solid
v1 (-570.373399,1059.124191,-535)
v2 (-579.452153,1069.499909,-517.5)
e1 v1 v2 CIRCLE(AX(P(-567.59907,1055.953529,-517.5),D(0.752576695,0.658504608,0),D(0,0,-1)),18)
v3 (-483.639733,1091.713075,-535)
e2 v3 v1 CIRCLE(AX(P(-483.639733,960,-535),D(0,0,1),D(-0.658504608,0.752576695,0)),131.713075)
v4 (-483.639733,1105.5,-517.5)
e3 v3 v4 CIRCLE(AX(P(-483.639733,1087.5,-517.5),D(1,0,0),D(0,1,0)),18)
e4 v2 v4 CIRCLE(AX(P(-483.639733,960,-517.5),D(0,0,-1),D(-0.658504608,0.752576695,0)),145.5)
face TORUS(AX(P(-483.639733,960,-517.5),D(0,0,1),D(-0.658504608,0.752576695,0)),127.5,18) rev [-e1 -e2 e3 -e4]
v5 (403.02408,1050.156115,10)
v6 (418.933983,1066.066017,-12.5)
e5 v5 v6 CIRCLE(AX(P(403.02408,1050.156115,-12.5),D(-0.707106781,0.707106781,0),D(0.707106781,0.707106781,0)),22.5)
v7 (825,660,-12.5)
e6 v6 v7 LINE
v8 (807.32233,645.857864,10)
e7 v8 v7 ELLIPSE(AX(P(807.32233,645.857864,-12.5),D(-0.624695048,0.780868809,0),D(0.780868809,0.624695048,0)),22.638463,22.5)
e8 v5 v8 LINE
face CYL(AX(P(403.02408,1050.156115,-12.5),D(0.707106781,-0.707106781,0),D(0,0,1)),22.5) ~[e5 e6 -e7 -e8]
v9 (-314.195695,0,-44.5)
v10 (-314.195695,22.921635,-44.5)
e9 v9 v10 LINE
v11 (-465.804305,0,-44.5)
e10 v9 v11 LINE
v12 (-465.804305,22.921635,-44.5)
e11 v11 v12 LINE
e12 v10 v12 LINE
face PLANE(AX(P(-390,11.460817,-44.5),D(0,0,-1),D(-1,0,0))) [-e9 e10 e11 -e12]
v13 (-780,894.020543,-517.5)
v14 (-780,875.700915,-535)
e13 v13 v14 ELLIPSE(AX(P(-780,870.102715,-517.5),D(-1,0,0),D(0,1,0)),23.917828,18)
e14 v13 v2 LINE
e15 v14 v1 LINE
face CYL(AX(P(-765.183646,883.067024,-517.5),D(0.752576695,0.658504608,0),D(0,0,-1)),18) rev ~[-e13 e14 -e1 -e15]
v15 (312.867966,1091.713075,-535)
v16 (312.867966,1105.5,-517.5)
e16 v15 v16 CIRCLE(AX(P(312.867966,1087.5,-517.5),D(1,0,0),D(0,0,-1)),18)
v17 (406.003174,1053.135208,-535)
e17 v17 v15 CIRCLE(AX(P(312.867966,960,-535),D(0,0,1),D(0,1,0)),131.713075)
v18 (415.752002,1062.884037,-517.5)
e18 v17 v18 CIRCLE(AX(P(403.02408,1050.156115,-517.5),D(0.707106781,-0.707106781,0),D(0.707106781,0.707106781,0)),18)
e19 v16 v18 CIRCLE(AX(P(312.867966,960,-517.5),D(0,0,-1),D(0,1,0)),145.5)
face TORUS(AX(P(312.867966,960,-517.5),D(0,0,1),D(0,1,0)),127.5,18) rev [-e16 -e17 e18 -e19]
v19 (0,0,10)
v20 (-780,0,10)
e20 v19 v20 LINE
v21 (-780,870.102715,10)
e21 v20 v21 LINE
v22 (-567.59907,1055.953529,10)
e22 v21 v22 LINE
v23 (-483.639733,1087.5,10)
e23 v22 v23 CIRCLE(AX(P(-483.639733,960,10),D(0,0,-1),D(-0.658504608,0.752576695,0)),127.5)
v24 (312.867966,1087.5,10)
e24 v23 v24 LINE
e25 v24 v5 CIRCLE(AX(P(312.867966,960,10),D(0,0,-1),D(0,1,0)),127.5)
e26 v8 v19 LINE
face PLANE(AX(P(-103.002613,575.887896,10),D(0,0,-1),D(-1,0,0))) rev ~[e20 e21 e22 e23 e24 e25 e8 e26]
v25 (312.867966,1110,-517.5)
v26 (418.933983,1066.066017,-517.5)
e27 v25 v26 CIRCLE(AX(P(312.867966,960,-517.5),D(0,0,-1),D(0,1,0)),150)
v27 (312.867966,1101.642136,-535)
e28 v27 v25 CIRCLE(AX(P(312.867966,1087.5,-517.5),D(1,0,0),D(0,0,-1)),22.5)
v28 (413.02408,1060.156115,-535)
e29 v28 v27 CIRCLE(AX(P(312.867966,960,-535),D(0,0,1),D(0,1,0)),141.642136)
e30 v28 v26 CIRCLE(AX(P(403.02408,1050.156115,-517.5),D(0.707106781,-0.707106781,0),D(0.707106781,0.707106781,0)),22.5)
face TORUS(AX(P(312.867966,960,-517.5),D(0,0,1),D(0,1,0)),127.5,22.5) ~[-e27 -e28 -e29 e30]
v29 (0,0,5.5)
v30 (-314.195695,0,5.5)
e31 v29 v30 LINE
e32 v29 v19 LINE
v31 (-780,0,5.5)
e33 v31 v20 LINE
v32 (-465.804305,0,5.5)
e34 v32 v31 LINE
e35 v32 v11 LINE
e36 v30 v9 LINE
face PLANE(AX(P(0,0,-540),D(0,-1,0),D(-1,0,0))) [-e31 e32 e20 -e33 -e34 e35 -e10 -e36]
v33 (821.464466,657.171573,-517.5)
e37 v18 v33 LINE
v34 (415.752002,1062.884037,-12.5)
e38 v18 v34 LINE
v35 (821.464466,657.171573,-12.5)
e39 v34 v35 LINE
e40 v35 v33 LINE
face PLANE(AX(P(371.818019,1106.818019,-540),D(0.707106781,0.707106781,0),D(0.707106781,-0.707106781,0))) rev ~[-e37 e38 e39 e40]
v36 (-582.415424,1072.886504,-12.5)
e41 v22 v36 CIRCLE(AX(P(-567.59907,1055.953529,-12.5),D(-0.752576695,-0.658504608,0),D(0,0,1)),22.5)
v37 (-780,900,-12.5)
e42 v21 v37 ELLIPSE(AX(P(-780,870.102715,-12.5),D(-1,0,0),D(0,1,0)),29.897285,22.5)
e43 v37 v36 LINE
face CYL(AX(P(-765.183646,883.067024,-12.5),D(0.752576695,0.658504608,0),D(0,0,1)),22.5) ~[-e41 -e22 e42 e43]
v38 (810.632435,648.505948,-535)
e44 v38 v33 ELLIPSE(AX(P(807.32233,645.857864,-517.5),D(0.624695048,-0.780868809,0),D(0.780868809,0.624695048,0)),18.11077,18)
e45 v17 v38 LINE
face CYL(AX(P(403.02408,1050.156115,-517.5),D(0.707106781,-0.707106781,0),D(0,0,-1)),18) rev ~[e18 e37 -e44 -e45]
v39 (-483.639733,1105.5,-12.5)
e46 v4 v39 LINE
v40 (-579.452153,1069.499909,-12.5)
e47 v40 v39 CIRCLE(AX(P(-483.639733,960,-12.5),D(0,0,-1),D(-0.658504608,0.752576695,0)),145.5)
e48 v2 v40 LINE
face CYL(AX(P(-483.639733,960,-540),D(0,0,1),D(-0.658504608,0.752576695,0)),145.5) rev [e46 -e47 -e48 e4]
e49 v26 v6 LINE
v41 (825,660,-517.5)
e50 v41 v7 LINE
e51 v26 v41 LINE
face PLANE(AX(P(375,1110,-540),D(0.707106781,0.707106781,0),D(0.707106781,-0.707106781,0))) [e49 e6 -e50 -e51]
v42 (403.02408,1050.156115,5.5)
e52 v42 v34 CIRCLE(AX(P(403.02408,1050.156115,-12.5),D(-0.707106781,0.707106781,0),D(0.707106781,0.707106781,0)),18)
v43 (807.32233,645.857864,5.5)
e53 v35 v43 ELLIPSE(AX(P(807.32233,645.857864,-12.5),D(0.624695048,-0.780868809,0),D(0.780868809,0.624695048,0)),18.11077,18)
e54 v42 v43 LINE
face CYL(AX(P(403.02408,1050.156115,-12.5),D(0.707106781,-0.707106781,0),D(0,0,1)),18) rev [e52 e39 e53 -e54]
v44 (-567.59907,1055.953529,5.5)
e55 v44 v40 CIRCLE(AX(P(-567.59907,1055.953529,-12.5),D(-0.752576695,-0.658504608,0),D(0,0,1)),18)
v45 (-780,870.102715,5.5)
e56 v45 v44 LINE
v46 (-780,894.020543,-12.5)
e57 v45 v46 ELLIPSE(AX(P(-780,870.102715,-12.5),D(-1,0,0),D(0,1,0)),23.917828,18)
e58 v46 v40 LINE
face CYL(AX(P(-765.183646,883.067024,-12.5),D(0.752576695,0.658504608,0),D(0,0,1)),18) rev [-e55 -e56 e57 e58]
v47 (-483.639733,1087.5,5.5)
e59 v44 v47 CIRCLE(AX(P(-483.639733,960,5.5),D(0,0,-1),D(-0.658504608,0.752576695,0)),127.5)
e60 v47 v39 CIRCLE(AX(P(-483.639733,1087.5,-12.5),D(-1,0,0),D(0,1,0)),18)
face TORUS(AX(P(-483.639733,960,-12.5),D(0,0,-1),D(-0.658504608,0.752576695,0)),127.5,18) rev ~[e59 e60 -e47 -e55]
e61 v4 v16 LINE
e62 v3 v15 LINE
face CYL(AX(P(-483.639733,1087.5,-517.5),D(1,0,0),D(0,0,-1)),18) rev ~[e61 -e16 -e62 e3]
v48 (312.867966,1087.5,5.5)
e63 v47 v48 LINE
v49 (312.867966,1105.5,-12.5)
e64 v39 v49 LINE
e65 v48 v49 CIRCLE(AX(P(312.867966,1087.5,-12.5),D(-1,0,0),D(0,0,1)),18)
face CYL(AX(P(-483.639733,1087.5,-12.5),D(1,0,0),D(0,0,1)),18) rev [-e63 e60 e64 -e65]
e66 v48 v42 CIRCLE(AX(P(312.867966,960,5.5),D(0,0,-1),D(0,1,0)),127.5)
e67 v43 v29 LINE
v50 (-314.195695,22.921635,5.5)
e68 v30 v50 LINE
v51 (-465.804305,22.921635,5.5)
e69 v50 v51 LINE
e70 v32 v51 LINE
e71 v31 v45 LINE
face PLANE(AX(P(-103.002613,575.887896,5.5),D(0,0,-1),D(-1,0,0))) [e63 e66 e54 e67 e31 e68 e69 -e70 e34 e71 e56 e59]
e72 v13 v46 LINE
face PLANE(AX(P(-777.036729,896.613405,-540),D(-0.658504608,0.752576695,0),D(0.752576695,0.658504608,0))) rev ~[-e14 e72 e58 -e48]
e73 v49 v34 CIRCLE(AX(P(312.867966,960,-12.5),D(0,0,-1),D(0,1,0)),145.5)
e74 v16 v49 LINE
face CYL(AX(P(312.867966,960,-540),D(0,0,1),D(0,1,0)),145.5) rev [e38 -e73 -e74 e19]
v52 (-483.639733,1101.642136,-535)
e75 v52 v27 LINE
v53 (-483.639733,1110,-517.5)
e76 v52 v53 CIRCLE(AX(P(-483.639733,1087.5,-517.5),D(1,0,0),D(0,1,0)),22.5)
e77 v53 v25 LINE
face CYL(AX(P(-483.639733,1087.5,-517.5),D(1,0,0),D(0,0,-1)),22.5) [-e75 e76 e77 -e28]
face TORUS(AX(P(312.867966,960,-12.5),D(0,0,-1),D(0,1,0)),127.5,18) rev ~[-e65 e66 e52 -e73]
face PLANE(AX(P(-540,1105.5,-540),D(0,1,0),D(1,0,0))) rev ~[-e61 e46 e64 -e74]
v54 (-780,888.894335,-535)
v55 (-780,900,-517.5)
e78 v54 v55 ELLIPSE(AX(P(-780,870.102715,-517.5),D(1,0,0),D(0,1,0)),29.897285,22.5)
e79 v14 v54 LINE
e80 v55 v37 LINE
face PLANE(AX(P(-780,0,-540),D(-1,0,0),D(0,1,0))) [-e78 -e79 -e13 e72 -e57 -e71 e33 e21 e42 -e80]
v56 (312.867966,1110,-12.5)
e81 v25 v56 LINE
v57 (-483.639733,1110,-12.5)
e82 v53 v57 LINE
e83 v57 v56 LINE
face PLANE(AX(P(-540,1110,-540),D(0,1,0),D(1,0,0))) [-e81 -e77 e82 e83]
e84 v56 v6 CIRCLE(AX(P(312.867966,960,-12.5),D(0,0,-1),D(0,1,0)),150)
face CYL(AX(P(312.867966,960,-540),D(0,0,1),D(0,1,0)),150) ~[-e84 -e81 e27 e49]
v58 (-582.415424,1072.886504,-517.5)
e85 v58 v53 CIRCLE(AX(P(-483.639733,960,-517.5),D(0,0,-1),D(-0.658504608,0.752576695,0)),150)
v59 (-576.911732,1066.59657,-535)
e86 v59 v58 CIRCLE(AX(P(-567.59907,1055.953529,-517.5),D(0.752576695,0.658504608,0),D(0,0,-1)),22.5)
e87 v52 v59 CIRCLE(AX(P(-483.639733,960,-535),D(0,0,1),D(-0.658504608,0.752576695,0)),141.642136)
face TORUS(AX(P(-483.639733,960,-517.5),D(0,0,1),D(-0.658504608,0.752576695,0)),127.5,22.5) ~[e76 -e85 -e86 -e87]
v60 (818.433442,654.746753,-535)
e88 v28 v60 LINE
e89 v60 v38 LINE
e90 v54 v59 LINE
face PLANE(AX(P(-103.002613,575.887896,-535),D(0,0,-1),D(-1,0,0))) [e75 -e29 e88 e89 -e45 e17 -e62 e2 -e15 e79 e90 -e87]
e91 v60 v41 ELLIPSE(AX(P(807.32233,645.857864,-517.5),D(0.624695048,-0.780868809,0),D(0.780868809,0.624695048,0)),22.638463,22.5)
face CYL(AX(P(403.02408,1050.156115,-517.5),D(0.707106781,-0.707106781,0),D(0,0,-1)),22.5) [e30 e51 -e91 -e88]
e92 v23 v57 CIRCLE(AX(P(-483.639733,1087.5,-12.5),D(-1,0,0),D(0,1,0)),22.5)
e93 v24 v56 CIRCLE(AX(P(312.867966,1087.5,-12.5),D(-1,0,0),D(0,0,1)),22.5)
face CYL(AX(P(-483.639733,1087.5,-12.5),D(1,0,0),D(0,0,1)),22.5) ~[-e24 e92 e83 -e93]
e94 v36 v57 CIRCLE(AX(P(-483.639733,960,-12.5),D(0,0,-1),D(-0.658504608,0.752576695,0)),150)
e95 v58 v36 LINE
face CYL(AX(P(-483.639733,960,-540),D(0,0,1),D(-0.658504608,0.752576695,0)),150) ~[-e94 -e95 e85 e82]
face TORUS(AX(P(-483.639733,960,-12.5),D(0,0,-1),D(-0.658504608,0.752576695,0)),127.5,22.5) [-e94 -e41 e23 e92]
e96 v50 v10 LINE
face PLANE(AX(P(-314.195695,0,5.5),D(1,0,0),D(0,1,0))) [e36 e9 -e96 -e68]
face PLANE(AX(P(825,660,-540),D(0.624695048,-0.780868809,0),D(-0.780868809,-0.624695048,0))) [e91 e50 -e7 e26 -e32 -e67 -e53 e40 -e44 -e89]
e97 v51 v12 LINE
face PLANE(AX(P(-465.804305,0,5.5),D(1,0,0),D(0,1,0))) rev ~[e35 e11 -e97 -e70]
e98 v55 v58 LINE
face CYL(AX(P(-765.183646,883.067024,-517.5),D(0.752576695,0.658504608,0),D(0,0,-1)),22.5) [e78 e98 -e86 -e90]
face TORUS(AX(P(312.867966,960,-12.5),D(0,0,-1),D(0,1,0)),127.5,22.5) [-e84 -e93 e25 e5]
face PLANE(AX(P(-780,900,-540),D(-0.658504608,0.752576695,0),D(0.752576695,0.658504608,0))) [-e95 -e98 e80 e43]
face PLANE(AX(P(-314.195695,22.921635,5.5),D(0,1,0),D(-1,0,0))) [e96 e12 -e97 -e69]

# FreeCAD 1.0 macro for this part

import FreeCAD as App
import Part
import Sketcher

V = App.Vector
Q = App.Units.Quantity


def edges_at(feature, points):
    """Names of the edges that pass closest to the given points."""
    edges = feature.Shape.Edges
    near = lambda p: min(range(len(edges)), key=lambda i: edges[i].distToShape(Part.Vertex(*p))[0])
    return sorted({f"Edge{near(p) + 1}" for p in points})


def faces_at(feature, points):
    """Names of the faces that lie closest to the given points."""
    faces = feature.Shape.Faces
    near = lambda p: min(range(len(faces)), key=lambda i: faces[i].distToShape(Part.Vertex(*p))[0])
    return sorted({f"Face{near(p) + 1}" for p in points})


def add_polygon(sketch, points):
    """Adds a closed chain of lines whose ends are joined by coincident constraints."""
    first, n = sketch.GeometryCount, len(points)
    for a, b in zip(points, points[1:] + points[:1]):
        sketch.addGeometry(Part.LineSegment(App.Vector(*a, 0), App.Vector(*b, 0)), False)
    for i in range(n):
        sketch.addConstraint(Sketcher.Constraint("Coincident", first + i, 2, first + (i + 1) % n, 1))

doc = App.newDocument("Part")
body = doc.addObject("PartDesign::Body", "Body")

sketch1 = doc.addObject("Sketcher::SketchObject", "Sketch")
body.addObject(sketch1)
sketch1.AttachmentSupport = (doc.XY_Plane, [""])
sketch1.MapMode = "FlatFace"
add_polygon(sketch1, [(-780, 0), (0, 0), (825, 660), (375, 1110), (-540, 1110), (-780, 900)])
sketch1.addConstraint([
    Sketcher.Constraint("Horizontal", 0),
    Sketcher.Constraint("Horizontal", 3),
    Sketcher.Constraint("Vertical", 5),
    Sketcher.Constraint("Coincident", 0, 2, -1, 1),
    Sketcher.Constraint("DistanceX", 0, 1, 0, 2, Q("780 mm")),
    Sketcher.Constraint("DistanceX", 3, 2, 3, 1, Q("915 mm")),
    Sketcher.Constraint("DistanceY", 5, 2, 5, 1, Q("900 mm")),
    Sketcher.Constraint("Angle", 2, Q("135 deg")),
    Sketcher.Constraint("DistanceX", -1, 1, 1, 2, Q("825 mm")),
    Sketcher.Constraint("DistanceY", -1, 1, 1, 2, Q("660 mm")),
    Sketcher.Constraint("DistanceX", -1, 1, 2, 2, Q("375 mm")),
])
pad1 = doc.addObject("PartDesign::Pad", "Pad")
body.addObject(pad1)
pad1.Profile = sketch1
pad1.Type = "TwoLengths"
pad1.Length = 10
pad1.Length2 = 540
doc.recompute()

fillet = doc.addObject("PartDesign::Fillet", "Fillet")
body.addObject(fillet)
fillet.Base = (pad1, edges_at(pad1, [(-540, 1110, -265), (375, 1110, -265)]))
fillet.Radius = 150
doc.recompute()

fillet2 = doc.addObject("PartDesign::Fillet", "Fillet001")
body.addObject(fillet2)
fillet2.Base = (fillet, edges_at(fillet, [
    (621.967, 863.033, -540),
    (-85.386, 1110, -540),
    (-85.386, 1110, 10),
    (-681.208, 986.443, -540),
    (-536.399, 1100.415, -540),
    (370.27, 1098.582, -540),
    (-681.208, 986.443, 10),
    (-536.399, 1100.415, 10),
    (370.27, 1098.582, 10),
    (621.967, 863.033, 10),
]))
fillet2.Radius = 22.5
doc.recompute()

thickness = doc.addObject("PartDesign::Thickness", "Thickness")
body.addObject(thickness)
thickness.Base = (fillet2, faces_at(fillet2, [(-390, 0, -265), (-780, 450, -265), (412.5, 330, -265)]))
thickness.Value = 4.5
thickness.Reversed = True
thickness.Join = "Arc"

sketch2 = doc.addObject("Sketcher::SketchObject", "Sketch001")
body.addObject(sketch2)
sketch2.AttachmentSupport = (doc.XY_Plane, [""])
sketch2.MapMode = "FlatFace"
sketch2.AttachmentOffset = App.Placement(V(0, 0, -535), App.Rotation())
add_polygon(sketch2, [(-780, 0), (0, 0), (825, 660), (375, 1110), (-540, 1110), (-780, 900)])
sketch2.addConstraint([
    Sketcher.Constraint("Horizontal", 0),
    Sketcher.Constraint("Horizontal", 3),
    Sketcher.Constraint("Vertical", 5),
    Sketcher.Constraint("Coincident", 0, 2, -1, 1),
    Sketcher.Constraint("DistanceX", 0, 1, 0, 2, Q("780 mm")),
    Sketcher.Constraint("DistanceX", 3, 2, 3, 1, Q("915 mm")),
    Sketcher.Constraint("DistanceY", 5, 2, 5, 1, Q("900 mm")),
    Sketcher.Constraint("Angle", 2, Q("135 deg")),
    Sketcher.Constraint("DistanceX", -1, 1, 1, 2, Q("825 mm")),
    Sketcher.Constraint("DistanceY", -1, 1, 1, 2, Q("660 mm")),
    Sketcher.Constraint("DistanceX", -1, 1, 2, 2, Q("375 mm")),
])
pocket1 = doc.addObject("PartDesign::Pocket", "Pocket")
body.addObject(pocket1)
pocket1.Profile = sketch2
pocket1.Length = 79

sketch3 = doc.addObject("Sketcher::SketchObject", "Sketch002")
body.addObject(sketch3)
sketch3.AttachmentSupport = (doc.XY_Plane, [""])
sketch3.MapMode = "FlatFace"
sketch3.AttachmentOffset = App.Placement(V(0, 0, 5.5), App.Rotation())
add_polygon(sketch3, [(-314.195695, 22.921635), (-314.195695, 0), (-465.804305, 0), (-465.804305, 22.921635)])
sketch3.addConstraint([
    Sketcher.Constraint("Vertical", 0),
    Sketcher.Constraint("Horizontal", 1),
    Sketcher.Constraint("Vertical", 2),
    Sketcher.Constraint("Horizontal", 3),
    Sketcher.Constraint("PointOnObject", 0, 2, -1),
    Sketcher.Constraint("DistanceX", 1, 2, 1, 1, Q("151.608609 mm")),
    Sketcher.Constraint("DistanceY", 0, 2, 0, 1, Q("22.921635 mm")),
    Sketcher.Constraint("DistanceX", 0, 2, -1, 1, Q("314.195695 mm")),
])
pad2 = doc.addObject("PartDesign::Pad", "Pad001")
body.addObject(pad2)
pad2.Profile = sketch3
pad2.Length = 50
pad2.Reversed = True

doc.recompute()
